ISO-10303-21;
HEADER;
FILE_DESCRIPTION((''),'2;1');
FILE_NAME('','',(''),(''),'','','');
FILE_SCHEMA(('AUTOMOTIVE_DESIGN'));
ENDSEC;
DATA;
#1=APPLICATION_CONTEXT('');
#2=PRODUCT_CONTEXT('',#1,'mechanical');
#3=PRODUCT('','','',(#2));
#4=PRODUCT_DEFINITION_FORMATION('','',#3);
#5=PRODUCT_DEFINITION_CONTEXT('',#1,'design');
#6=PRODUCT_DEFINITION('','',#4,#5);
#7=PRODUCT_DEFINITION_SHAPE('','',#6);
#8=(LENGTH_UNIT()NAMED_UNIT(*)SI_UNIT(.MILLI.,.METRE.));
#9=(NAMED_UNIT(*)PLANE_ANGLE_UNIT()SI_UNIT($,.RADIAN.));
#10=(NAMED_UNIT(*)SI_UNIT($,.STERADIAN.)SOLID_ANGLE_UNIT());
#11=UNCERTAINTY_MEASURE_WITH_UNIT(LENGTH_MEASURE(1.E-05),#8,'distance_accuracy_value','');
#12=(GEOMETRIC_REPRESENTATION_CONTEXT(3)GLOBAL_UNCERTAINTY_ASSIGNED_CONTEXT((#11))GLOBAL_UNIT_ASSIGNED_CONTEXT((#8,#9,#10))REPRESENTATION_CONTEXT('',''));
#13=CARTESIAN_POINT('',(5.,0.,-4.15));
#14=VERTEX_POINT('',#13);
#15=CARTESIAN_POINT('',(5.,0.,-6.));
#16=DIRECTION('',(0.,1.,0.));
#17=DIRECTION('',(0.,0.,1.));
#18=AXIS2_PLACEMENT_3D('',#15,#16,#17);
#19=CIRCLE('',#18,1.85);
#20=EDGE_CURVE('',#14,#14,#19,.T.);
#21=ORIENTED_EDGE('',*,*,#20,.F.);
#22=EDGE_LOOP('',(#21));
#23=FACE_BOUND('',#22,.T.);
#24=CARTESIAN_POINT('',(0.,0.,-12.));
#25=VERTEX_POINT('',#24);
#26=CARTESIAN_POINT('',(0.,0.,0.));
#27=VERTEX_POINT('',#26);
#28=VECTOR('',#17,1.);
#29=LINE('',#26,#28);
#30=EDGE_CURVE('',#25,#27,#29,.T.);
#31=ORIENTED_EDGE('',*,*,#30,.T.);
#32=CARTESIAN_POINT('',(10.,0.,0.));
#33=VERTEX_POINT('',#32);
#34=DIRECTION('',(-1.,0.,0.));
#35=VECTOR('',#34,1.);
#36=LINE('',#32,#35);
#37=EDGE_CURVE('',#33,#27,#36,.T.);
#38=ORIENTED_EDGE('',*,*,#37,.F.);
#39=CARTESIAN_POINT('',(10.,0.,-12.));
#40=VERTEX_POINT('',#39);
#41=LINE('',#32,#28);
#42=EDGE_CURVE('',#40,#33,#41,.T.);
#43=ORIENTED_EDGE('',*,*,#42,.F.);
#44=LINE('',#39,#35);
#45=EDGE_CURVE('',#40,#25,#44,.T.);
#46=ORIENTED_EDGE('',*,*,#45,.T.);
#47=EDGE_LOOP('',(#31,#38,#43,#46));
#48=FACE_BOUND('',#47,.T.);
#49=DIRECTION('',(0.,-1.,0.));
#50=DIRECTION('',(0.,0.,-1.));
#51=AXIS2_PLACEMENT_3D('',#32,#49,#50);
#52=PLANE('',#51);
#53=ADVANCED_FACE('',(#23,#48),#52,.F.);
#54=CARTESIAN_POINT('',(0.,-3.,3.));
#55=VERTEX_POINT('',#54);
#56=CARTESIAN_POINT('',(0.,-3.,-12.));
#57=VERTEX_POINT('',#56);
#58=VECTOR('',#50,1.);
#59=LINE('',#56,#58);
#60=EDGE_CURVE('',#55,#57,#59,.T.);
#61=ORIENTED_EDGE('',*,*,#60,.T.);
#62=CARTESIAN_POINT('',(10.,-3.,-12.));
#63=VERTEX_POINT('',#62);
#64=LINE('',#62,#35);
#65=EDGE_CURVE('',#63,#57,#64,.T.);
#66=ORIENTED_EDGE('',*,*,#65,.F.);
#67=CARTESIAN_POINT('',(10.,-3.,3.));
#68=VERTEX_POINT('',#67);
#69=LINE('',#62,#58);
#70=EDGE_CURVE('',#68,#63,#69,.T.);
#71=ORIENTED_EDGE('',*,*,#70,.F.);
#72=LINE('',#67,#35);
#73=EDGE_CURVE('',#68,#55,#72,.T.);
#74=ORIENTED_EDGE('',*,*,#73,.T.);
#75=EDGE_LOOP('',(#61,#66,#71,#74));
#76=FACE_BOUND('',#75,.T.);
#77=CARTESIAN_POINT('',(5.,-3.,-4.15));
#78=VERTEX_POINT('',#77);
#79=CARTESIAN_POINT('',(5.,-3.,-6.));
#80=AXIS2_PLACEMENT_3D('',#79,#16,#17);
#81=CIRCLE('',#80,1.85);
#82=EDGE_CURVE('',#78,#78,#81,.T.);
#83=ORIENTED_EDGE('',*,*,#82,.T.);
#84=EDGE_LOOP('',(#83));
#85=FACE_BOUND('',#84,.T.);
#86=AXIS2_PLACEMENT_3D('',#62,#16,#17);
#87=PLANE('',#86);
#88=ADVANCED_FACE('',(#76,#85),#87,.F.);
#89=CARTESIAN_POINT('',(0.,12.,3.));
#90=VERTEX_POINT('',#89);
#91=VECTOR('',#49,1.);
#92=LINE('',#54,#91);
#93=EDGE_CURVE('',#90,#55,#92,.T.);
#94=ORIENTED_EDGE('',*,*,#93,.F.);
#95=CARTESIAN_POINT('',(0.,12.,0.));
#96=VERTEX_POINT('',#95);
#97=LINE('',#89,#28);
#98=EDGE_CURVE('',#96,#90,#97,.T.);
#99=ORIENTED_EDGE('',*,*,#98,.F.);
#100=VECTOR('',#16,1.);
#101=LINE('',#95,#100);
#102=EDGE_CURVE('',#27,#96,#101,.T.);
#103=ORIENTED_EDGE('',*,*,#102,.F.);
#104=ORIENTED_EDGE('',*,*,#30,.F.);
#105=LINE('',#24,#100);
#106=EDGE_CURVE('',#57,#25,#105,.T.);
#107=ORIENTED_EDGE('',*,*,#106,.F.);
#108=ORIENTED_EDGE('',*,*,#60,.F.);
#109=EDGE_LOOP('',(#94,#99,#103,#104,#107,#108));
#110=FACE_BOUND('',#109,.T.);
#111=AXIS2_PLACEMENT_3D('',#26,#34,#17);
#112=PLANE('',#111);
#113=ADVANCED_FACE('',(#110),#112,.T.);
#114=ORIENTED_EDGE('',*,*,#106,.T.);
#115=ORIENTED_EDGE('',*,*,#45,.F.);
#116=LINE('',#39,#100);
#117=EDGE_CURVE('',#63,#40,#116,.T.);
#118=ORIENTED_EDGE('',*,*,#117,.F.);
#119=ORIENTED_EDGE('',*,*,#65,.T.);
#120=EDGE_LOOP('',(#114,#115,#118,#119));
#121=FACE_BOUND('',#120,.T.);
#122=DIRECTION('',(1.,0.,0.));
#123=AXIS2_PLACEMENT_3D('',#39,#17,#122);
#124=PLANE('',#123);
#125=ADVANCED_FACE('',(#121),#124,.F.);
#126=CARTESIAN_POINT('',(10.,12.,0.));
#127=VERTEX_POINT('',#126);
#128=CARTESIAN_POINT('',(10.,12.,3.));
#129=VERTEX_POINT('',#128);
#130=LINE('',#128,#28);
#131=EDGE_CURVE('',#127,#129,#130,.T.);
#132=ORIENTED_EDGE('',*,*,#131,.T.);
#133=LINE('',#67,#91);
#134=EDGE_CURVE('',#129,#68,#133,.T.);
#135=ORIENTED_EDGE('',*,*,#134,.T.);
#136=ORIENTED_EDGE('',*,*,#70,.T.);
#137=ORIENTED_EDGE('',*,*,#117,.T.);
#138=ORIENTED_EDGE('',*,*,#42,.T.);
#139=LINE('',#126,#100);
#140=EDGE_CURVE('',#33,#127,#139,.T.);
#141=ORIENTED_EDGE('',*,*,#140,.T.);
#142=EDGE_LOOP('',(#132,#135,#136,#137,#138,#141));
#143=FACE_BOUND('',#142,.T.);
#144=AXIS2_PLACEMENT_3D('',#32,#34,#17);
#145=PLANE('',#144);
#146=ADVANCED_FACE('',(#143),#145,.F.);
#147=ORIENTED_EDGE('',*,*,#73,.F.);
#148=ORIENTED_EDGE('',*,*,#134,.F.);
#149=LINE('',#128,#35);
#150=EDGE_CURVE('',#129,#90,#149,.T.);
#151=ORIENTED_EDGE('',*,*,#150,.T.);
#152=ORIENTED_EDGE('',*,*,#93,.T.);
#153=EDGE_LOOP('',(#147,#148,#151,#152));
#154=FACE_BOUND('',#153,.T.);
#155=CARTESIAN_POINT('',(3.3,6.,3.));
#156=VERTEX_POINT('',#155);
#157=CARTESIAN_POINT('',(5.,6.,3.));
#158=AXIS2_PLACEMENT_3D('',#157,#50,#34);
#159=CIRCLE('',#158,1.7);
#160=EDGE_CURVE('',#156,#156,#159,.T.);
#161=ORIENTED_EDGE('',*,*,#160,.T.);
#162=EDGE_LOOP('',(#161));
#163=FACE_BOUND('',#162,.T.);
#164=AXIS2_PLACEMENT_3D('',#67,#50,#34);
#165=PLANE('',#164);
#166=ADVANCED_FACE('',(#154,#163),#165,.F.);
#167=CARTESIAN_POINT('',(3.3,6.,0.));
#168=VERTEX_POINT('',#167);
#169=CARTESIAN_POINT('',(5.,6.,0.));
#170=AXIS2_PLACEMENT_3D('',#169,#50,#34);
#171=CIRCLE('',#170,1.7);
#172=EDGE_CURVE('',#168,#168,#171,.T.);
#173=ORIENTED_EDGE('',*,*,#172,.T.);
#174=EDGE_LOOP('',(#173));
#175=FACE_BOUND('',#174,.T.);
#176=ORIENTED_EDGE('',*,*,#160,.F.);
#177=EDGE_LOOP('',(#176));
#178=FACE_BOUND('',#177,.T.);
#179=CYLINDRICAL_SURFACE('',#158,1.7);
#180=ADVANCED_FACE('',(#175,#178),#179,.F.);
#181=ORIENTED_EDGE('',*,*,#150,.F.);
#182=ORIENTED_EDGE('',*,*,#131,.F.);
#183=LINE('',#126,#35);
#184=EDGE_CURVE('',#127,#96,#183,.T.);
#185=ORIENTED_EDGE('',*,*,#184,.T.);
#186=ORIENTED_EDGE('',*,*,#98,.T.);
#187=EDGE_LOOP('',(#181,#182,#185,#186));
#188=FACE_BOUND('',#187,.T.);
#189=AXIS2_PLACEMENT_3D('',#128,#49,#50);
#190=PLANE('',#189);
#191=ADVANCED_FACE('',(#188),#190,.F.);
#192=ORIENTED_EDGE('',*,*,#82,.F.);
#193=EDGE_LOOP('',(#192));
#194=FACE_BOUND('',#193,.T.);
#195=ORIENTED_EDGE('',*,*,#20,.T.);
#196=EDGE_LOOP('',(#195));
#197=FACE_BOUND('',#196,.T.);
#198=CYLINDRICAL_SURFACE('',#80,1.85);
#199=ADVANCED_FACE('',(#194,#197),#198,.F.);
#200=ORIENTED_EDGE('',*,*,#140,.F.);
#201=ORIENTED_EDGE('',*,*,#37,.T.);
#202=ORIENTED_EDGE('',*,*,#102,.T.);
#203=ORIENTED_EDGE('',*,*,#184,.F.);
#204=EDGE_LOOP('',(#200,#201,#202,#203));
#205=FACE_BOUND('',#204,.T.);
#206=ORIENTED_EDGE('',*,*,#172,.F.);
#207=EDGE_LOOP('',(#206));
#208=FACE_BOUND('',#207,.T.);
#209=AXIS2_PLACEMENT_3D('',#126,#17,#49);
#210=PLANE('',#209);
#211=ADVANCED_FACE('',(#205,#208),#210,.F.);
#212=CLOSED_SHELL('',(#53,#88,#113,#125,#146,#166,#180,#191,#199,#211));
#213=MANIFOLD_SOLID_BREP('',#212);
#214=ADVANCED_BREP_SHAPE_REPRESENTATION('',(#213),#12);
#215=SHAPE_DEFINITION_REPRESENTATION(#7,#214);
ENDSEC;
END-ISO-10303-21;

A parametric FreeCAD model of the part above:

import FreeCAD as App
import Part
import Sketcher
from FreeCAD import Vector
Q = App.Units.Quantity

doc = App.newDocument("Part")
params = doc.addObject("Spreadsheet::Sheet", "Params")
for row, (alias, value) in enumerate([
    ("sketch1_width", "15 mm"),
    ("sketch1_width2", "3 mm"),
    ("pad1_length", "10 mm"),
    ("sketch2_diameter", "3.7 mm"),
    ("sketch3_diameter", "3.4 mm"),
], start=1):
    params.set(f"A{row}", alias)
    params.set(f"B{row}", "=" + value)
    params.setAlias(f"B{row}", alias)

body = doc.addObject("PartDesign::Body", "Body")

# Sketch on YZ plane
sketch1 = body.newObject("Sketcher::SketchObject", "Sketch")
sketch1.AttachmentSupport = (doc.getObject("YZ_Plane"), [""])
sketch1.MapMode = "FlatFace"
sketch1.addGeometry([
    Part.LineSegment(Vector(12, 0, 0), Vector(12, 3, 0)),  # 0
    Part.LineSegment(Vector(12, 3, 0), Vector(-3, 3, 0)),  # 1
    Part.LineSegment(Vector(-3, 3, 0), Vector(-3, -12, 0)),  # 2
    Part.LineSegment(Vector(-3, -12, 0), Vector(0, -12, 0)),  # 3
    Part.LineSegment(Vector(0, -12, 0), Vector(0, 0, 0)),  # 4
    Part.LineSegment(Vector(0, 0, 0), Vector(12, 0, 0)),  # 5
], False)
sketch1.addConstraint([
    Sketcher.Constraint("Coincident", 0, 2, 1, 1),
    Sketcher.Constraint("Coincident", 1, 2, 2, 1),
    Sketcher.Constraint("Coincident", 2, 2, 3, 1),
    Sketcher.Constraint("Coincident", 3, 2, 4, 1),
    Sketcher.Constraint("Coincident", 4, 2, 5, 1),
    Sketcher.Constraint("Coincident", 5, 2, 0, 1),
    Sketcher.Constraint("Vertical", 0),
    Sketcher.Constraint("Horizontal", 1),
    Sketcher.Constraint("Vertical", 2),
    Sketcher.Constraint("Horizontal", 3),
    Sketcher.Constraint("Vertical", 4),
    Sketcher.Constraint("Horizontal", 5),
    Sketcher.Constraint("Coincident", 4, 2, -1, 1),
    Sketcher.Constraint("Equal", 3, 0),
    Sketcher.Constraint("Equal", 1, 2),
    Sketcher.Constraint("DistanceX", 1, 2, 1, 1, Q("15 mm")),
    Sketcher.Constraint("DistanceX", 3, 1, 3, 2, Q("3 mm")),
])
sketch1.setExpression("Constraints[15]", "Params.sketch1_width")
sketch1.setExpression("Constraints[16]", "Params.sketch1_width2")
pad1 = body.newObject("PartDesign::Pad", "Pad")
pad1.Profile = sketch1
pad1.setExpression("Length", "Params.pad1_length")

# Sketch on XZ plane
sketch2 = body.newObject("Sketcher::SketchObject", "Sketch001")
sketch2.AttachmentSupport = (doc.getObject("XZ_Plane"), [""])
sketch2.MapMode = "FlatFace"
sketch2.addGeometry(Part.Circle(Vector(5, -6, 0), Vector(0, 0, 1), 1.85), False)
sketch2.addConstraint([
    Sketcher.Constraint("Diameter", 0, Q("3.7 mm")),
    Sketcher.Constraint("DistanceX", -1, 1, 0, 3, Q("5 mm")),
    Sketcher.Constraint("DistanceY", 0, 3, -1, 1, Q("6 mm")),
])
sketch2.setExpression("Constraints[0]", "Params.sketch2_diameter")
pocket1 = body.newObject("PartDesign::Pocket", "Pocket")
pocket1.Profile = sketch2
pocket1.Type = "ThroughAll"
pocket1.Reversed = True

# Sketch on XY plane
sketch3 = body.newObject("Sketcher::SketchObject", "Sketch002")
sketch3.AttachmentSupport = (doc.getObject("XY_Plane"), [""])
sketch3.MapMode = "FlatFace"
sketch3.addGeometry(Part.Circle(Vector(5, 6, 0), Vector(0, 0, 1), 1.7), False)
sketch3.addConstraint([
    Sketcher.Constraint("Diameter", 0, Q("3.4 mm")),
    Sketcher.Constraint("DistanceX", -1, 1, 0, 3, Q("5 mm")),
    Sketcher.Constraint("DistanceY", -1, 1, 0, 3, Q("6 mm")),
])
sketch3.setExpression("Constraints[0]", "Params.sketch3_diameter")
pocket2 = body.newObject("PartDesign::Pocket", "Pocket001")
pocket2.Profile = sketch3
pocket2.Type = "ThroughAll"
pocket2.Reversed = True

doc.recompute()
